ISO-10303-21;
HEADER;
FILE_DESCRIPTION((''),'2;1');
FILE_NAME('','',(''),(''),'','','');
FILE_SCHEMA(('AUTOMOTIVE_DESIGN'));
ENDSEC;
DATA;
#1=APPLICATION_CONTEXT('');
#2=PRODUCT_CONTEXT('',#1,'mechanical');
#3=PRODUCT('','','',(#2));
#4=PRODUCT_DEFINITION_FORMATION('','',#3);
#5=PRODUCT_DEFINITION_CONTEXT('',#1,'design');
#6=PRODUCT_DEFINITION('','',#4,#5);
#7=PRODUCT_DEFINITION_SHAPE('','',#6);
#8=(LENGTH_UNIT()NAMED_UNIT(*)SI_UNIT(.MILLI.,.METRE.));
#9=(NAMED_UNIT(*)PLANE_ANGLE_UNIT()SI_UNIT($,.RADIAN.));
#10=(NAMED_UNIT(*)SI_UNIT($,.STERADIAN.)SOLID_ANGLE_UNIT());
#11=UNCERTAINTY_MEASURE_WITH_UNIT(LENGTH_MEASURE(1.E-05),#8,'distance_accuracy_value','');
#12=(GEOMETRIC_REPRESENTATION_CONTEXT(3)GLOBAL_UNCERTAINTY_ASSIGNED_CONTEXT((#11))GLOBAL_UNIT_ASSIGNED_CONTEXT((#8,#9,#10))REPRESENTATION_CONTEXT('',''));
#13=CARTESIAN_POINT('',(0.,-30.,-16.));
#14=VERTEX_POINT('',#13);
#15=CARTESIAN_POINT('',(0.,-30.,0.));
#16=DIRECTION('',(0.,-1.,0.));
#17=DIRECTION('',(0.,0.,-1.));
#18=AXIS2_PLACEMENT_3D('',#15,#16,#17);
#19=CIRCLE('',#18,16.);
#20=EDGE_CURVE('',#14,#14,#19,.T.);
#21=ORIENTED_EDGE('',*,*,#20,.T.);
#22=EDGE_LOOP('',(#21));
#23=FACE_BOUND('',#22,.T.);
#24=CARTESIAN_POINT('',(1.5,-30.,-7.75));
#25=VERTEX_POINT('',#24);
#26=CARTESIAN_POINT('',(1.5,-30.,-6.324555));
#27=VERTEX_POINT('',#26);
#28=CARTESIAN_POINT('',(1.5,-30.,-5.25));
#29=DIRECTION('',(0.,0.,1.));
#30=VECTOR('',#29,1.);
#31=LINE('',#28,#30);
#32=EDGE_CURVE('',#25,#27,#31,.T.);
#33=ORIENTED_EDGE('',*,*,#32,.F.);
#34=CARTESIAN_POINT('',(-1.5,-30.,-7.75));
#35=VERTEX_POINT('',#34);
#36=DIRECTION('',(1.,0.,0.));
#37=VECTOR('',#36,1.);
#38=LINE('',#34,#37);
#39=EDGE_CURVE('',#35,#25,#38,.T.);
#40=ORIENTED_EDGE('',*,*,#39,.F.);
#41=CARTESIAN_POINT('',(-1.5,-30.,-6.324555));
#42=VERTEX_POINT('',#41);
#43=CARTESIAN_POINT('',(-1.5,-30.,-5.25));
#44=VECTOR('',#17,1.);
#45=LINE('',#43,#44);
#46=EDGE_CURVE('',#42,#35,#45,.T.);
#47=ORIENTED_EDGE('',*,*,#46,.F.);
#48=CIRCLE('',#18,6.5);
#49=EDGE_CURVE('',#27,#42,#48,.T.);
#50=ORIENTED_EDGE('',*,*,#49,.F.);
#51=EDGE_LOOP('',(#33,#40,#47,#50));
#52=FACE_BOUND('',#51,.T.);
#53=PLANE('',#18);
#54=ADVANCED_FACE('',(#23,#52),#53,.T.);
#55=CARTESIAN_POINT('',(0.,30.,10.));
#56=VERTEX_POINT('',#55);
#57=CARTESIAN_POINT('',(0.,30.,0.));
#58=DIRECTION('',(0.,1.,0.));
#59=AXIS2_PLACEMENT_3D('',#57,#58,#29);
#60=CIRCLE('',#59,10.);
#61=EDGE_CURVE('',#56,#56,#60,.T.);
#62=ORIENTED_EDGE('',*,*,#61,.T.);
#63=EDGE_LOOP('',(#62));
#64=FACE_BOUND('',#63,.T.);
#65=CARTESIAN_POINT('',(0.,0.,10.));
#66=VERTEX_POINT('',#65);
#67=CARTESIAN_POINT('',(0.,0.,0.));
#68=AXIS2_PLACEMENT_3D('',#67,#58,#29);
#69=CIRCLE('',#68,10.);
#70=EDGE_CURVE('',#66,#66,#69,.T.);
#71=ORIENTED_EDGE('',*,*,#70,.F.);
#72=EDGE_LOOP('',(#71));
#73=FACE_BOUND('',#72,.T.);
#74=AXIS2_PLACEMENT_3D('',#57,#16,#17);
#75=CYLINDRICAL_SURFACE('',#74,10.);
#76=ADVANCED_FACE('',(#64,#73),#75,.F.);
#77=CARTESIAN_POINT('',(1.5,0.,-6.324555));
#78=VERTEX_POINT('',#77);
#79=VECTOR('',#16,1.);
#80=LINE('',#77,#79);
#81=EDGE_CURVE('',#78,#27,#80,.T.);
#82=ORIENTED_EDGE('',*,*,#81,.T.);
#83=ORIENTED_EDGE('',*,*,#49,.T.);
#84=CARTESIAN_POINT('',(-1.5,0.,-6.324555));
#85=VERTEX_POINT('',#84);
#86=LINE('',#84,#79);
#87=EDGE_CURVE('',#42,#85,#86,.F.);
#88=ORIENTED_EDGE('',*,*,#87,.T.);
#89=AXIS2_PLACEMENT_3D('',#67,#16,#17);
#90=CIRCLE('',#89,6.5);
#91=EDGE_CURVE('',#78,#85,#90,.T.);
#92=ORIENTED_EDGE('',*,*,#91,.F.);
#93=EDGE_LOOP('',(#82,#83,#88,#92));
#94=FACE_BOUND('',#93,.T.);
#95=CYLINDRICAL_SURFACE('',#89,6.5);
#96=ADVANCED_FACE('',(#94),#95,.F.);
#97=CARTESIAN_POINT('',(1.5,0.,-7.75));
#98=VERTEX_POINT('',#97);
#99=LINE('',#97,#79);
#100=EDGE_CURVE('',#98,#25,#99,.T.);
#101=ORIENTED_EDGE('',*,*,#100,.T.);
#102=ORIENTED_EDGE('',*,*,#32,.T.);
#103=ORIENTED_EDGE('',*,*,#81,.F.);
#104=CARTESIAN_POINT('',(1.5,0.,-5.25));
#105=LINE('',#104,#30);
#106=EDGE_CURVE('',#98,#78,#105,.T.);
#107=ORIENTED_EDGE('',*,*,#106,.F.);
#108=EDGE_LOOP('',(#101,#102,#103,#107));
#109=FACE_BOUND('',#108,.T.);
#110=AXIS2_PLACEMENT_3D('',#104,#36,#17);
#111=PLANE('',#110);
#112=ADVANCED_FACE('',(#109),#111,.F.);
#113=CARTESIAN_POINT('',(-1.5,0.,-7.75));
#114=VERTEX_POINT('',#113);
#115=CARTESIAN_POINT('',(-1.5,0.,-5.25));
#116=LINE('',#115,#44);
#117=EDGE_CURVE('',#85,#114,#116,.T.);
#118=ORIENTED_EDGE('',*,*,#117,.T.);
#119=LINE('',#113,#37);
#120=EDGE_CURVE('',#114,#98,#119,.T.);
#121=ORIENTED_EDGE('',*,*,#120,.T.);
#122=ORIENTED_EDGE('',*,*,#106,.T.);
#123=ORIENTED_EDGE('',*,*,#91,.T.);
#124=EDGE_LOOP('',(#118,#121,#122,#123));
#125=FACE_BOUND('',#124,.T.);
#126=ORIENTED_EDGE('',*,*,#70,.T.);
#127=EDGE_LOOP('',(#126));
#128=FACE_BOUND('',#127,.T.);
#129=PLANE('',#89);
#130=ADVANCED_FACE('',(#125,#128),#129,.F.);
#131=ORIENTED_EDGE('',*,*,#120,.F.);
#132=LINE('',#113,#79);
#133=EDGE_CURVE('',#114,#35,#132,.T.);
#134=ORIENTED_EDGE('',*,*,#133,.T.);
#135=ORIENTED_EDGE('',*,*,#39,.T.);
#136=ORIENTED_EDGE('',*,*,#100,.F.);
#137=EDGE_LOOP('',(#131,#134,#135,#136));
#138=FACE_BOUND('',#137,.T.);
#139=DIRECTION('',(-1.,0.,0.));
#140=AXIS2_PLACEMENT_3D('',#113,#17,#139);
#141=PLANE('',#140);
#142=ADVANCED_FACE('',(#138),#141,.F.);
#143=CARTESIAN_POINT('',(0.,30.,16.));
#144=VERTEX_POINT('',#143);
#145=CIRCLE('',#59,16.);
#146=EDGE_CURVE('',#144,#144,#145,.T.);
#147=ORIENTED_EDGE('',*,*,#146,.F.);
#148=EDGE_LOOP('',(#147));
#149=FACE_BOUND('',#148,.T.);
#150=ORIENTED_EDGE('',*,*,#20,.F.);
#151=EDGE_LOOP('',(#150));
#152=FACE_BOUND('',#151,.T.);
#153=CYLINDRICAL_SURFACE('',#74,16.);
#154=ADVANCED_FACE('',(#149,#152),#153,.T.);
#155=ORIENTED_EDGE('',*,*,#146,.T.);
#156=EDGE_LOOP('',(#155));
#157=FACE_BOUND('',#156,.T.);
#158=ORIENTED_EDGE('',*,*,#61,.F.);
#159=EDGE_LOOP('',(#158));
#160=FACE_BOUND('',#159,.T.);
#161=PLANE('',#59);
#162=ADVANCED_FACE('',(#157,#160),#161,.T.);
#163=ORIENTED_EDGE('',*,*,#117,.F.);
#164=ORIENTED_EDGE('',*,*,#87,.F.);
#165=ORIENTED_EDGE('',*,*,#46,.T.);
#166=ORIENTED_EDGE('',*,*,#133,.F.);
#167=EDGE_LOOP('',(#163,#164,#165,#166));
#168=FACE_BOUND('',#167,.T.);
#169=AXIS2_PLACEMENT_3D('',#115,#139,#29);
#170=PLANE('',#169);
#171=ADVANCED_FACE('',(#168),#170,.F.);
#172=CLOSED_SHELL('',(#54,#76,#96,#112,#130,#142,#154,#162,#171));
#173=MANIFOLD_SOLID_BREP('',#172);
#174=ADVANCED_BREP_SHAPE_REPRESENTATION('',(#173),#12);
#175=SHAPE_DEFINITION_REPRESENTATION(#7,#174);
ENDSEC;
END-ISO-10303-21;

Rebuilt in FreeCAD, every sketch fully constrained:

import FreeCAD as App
import Part
import Sketcher
Q = App.Units.Quantity


def add_polygon(sketch, points):
    """Adds a closed chain of lines whose ends are joined by coincident constraints."""
    first, n = sketch.GeometryCount, len(points)
    for a, b in zip(points, points[1:] + points[:1]):
        sketch.addGeometry(Part.LineSegment(App.Vector(*a, 0), App.Vector(*b, 0)), False)
    for i in range(n):
        sketch.addConstraint(Sketcher.Constraint("Coincident", first + i, 2, first + (i + 1) % n, 1))

doc = App.newDocument("Part")
params = doc.addObject("Spreadsheet::Sheet", "Params")
for row, (alias, value) in enumerate([
    ("sketch1_diameter", "32 mm"),
    ("sketch1_diameter2", "20 mm"),
    ("pad1_length", "30 mm"),
    ("sketch2_diameter", "32 mm"),
    ("pad2_length", "30 mm"),
    ("sketch3_diameter", "13 mm"),
    ("pocket1_length", "30 mm"),
    ("sketch4_width", "3 mm"),
    ("sketch4_height", "2.5 mm"),
    ("pocket2_length", "30 mm"),
], start=1):
    params.set(f"A{row}", alias)
    params.set(f"B{row}", "=" + value)
    params.setAlias(f"B{row}", alias)

body = doc.addObject("PartDesign::Body", "Body")

sketch1 = body.newObject("Sketcher::SketchObject", "Sketch")
sketch1.AttachmentSupport = (doc.getObject("XZ_Plane"), [""])
sketch1.MapMode = "FlatFace"
sketch1.addGeometry(Part.Circle(App.Vector(0, 0, 0), App.Vector(0, 0, 1), 16), False)
sketch1.addGeometry(Part.Circle(App.Vector(0, 0, 0), App.Vector(0, 0, 1), 10), False)
sketch1.addConstraint(Sketcher.Constraint("Coincident", 0, 3, -1, 1))
sketch1.addConstraint(Sketcher.Constraint("Coincident", 1, 3, -1, 1))
sketch1.addConstraint(Sketcher.Constraint("Diameter", 0, Q("32 mm")))
sketch1.addConstraint(Sketcher.Constraint("Diameter", 1, Q("20 mm")))
sketch1.setExpression("Constraints[2]", "Params.sketch1_diameter")
sketch1.setExpression("Constraints[3]", "Params.sketch1_diameter2")
pad1 = body.newObject("PartDesign::Pad", "Pad")
pad1.Profile = sketch1
pad1.setExpression("Length", "Params.pad1_length")
pad1.Reversed = True

sketch2 = body.newObject("Sketcher::SketchObject", "Sketch001")
sketch2.AttachmentSupport = (doc.getObject("XZ_Plane"), [""])
sketch2.MapMode = "FlatFace"
sketch2.AttachmentOffset = App.Placement(App.Vector(0, 0, 30), App.Rotation())
sketch2.addGeometry(Part.Circle(App.Vector(0, 0, 0), App.Vector(0, 0, 1), 16), False)
sketch2.addConstraint(Sketcher.Constraint("Coincident", 0, 3, -1, 1))
sketch2.addConstraint(Sketcher.Constraint("Diameter", 0, Q("32 mm")))
sketch2.setExpression("Constraints[1]", "Params.sketch2_diameter")
pad2 = body.newObject("PartDesign::Pad", "Pad001")
pad2.Profile = sketch2
pad2.setExpression("Length", "Params.pad2_length")
pad2.Reversed = True

sketch3 = body.newObject("Sketcher::SketchObject", "Sketch002")
sketch3.AttachmentSupport = (doc.getObject("XZ_Plane"), [""])
sketch3.MapMode = "FlatFace"
sketch3.AttachmentOffset = App.Placement(App.Vector(0, 0, 30), App.Rotation())
sketch3.addGeometry(Part.Circle(App.Vector(0, 0, 0), App.Vector(0, 0, 1), 6), False)
sketch3.addConstraint(Sketcher.Constraint("Coincident", 0, 3, -1, 1))
sketch3.addConstraint(Sketcher.Constraint("Diameter", 0, Q("13 mm")))
sketch3.setExpression("Constraints[1]", "Params.sketch3_diameter")
pocket1 = body.newObject("PartDesign::Pocket", "Pocket")
pocket1.Profile = sketch3
pocket1.setExpression("Length", "Params.pocket1_length")

sketch4 = body.newObject("Sketcher::SketchObject", "Sketch003")
sketch4.AttachmentSupport = (doc.getObject("XZ_Plane"), [""])
sketch4.MapMode = "FlatFace"
sketch4.AttachmentOffset = App.Placement(App.Vector(0, 0, 30), App.Rotation())
add_polygon(sketch4, [(-1.5, -5.2), (-1.5, -7.8), (1.5, -7.8), (1.5, -5.2)])
sketch4.addConstraint(Sketcher.Constraint("Vertical", 0))
sketch4.addConstraint(Sketcher.Constraint("Horizontal", 1))
sketch4.addConstraint(Sketcher.Constraint("Vertical", 2))
sketch4.addConstraint(Sketcher.Constraint("Horizontal", 3))
sketch4.addConstraint(Sketcher.Constraint("DistanceX", 1, 1, 1, 2, Q("3 mm")))
sketch4.addConstraint(Sketcher.Constraint("DistanceY", 0, 2, 0, 1, Q("2.5 mm")))
sketch4.addConstraint(Sketcher.Constraint("DistanceX", 0, 2, -1, 1, Q("1.5 mm")))
sketch4.addConstraint(Sketcher.Constraint("DistanceY", 0, 2, -1, 1, Q("7.75 mm")))
sketch4.setExpression("Constraints[8]", "Params.sketch4_width")
sketch4.setExpression("Constraints[9]", "Params.sketch4_height")
pocket2 = body.newObject("PartDesign::Pocket", "Pocket001")
pocket2.Profile = sketch4
pocket2.setExpression("Length", "Params.pocket2_length")

doc.recompute()
